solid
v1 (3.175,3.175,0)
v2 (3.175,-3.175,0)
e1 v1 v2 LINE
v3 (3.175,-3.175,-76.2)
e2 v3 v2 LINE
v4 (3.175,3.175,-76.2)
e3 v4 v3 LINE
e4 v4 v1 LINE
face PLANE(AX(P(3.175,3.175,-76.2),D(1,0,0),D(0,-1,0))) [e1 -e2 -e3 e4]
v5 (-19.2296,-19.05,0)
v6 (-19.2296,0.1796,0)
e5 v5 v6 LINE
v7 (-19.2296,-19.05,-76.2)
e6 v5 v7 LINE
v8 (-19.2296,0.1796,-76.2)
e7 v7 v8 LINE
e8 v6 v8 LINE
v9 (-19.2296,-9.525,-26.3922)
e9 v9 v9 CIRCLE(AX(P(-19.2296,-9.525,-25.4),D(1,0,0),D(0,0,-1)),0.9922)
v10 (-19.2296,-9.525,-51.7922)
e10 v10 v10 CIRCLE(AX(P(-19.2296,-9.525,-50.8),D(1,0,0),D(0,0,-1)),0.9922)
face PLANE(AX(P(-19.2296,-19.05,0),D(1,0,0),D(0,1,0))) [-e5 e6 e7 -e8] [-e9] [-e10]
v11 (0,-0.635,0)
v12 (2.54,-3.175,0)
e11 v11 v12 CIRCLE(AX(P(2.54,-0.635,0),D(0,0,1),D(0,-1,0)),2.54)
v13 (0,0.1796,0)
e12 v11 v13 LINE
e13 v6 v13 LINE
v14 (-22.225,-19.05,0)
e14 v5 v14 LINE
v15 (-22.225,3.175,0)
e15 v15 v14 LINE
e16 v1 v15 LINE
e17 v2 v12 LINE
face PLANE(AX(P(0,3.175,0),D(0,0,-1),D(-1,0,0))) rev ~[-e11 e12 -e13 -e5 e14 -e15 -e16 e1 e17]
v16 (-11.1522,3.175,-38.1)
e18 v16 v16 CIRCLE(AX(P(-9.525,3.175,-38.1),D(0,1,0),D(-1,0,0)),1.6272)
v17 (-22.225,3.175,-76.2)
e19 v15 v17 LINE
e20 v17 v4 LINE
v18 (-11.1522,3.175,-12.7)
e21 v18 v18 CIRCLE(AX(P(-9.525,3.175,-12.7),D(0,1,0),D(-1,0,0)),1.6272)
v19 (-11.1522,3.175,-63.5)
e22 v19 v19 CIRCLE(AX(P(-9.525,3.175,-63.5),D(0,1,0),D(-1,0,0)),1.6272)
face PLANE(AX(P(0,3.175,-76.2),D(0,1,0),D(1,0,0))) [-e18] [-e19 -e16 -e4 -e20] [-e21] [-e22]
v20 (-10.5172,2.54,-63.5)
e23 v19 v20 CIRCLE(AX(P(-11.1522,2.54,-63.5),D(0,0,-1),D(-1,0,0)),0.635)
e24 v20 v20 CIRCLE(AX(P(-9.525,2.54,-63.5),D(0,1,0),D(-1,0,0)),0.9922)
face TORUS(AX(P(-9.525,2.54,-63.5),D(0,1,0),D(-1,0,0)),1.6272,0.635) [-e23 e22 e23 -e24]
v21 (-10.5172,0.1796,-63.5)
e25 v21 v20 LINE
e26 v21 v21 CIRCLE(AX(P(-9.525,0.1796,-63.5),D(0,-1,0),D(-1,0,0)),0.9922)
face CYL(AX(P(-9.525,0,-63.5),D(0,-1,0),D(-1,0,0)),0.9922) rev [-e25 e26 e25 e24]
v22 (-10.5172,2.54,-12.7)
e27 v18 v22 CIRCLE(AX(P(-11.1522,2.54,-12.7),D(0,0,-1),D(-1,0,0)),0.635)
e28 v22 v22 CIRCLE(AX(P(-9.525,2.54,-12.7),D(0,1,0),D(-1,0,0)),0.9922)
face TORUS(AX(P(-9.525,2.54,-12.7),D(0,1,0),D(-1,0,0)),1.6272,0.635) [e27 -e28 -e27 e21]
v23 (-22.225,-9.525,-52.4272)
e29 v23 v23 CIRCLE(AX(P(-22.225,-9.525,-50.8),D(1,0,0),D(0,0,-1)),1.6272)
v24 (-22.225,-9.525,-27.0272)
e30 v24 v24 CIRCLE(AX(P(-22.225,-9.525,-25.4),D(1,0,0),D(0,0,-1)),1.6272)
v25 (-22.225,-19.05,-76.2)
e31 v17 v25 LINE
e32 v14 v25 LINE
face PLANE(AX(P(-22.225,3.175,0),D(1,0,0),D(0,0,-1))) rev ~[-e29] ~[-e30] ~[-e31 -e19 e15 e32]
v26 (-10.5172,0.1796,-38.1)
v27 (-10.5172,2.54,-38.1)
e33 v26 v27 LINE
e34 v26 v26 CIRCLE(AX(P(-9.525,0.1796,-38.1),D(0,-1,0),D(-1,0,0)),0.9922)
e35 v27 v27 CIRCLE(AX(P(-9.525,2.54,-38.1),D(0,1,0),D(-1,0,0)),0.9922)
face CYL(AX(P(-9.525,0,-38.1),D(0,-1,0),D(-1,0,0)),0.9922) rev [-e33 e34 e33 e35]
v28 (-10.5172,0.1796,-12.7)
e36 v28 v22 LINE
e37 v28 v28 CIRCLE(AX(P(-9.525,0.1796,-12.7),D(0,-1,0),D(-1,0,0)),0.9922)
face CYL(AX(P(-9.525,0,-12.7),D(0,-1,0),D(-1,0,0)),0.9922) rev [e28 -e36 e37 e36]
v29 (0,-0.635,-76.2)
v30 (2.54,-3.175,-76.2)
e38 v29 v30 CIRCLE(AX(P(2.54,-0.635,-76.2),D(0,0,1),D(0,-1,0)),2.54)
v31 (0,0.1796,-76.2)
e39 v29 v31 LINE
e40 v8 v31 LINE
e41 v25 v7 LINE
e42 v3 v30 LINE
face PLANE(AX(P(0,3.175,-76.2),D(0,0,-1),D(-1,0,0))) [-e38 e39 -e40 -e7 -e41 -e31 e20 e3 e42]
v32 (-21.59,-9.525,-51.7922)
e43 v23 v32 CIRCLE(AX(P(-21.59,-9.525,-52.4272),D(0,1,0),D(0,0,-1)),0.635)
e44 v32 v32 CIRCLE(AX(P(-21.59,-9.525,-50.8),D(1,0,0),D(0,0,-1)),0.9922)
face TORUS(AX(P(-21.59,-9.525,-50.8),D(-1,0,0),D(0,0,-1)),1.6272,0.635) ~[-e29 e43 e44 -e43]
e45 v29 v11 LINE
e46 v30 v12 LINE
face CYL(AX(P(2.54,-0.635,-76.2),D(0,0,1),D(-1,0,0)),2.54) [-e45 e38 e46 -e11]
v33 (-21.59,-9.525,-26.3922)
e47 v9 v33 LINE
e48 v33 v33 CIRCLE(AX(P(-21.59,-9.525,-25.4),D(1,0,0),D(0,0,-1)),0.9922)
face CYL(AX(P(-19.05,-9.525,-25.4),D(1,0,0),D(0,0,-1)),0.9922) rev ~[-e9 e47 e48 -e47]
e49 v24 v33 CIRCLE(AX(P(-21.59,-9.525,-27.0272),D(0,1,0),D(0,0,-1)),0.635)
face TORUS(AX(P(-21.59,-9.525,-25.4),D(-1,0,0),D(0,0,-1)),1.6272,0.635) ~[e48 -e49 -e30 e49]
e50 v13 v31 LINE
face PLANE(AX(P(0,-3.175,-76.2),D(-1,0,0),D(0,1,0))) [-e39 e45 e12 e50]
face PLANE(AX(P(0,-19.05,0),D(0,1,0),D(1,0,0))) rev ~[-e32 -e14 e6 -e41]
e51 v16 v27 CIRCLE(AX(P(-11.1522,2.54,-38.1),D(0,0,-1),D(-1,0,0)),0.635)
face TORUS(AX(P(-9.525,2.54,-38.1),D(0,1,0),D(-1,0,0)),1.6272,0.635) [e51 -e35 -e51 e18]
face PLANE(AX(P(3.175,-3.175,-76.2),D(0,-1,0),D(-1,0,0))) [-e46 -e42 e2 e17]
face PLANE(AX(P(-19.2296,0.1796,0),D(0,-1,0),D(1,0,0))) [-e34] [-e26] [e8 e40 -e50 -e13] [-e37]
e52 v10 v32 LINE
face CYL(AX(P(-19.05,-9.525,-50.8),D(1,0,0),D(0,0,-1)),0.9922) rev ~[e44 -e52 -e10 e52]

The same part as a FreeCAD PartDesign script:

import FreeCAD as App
import Part
import Sketcher

V = App.Vector
Q = App.Units.Quantity


def edges_at(feature, points):
    """Names of the edges that pass closest to the given points."""
    edges = feature.Shape.Edges
    near = lambda p: min(range(len(edges)), key=lambda i: edges[i].distToShape(Part.Vertex(*p))[0])
    return sorted({f"Edge{near(p) + 1}" for p in points})

doc = App.newDocument("Part")
body = doc.addObject("PartDesign::Body", "Body")

sketch1 = body.newObject("Sketcher::SketchObject", "Sketch")
sketch1.AttachmentSupport = (doc.getObject("XZ_Plane"), [""])
sketch1.MapMode = "FlatFace"
sketch1.addGeometry(Part.LineSegment(V(-19.1, 0, 0), V(0, 0, 0)), False)
sketch1.addGeometry(Part.LineSegment(V(0, 0, 0), V(0, -76.2, 0)), False)
sketch1.addGeometry(Part.LineSegment(V(0, -76.2, 0), V(-19.1, -76.2, 0)), False)
sketch1.addGeometry(Part.LineSegment(V(-19.1, -76.2, 0), V(-19.1, 0, 0)), False)
sketch1.addGeometry(Part.Circle(V(-9.5, -63.5, 0), V(0, 0, 1), 1), False)
sketch1.addGeometry(Part.Circle(V(-9.5, -38.1, 0), V(0, 0, 1), 1), False)
sketch1.addGeometry(Part.Circle(V(-9.5, -12.7, 0), V(0, 0, 1), 1), False)
sketch1.addConstraint(Sketcher.Constraint("Coincident", 0, 2, 1, 1))
sketch1.addConstraint(Sketcher.Constraint("Coincident", 1, 2, 2, 1))
sketch1.addConstraint(Sketcher.Constraint("Coincident", 2, 2, 3, 1))
sketch1.addConstraint(Sketcher.Constraint("Coincident", 3, 2, 0, 1))
sketch1.addConstraint(Sketcher.Constraint("Horizontal", 0))
sketch1.addConstraint(Sketcher.Constraint("Vertical", 1))
sketch1.addConstraint(Sketcher.Constraint("Horizontal", 2))
sketch1.addConstraint(Sketcher.Constraint("Vertical", 3))
sketch1.addConstraint(Sketcher.Constraint("Coincident", 0, 2, -1, 1))
sketch1.addConstraint(Sketcher.Constraint("Equal", 4, 5))
sketch1.addConstraint(Sketcher.Constraint("Equal", 5, 6))
sketch1.addConstraint(Sketcher.Constraint("Vertical", 4, 3, 5, 3))
sketch1.addConstraint(Sketcher.Constraint("Vertical", 5, 3, 6, 3))
sketch1.addConstraint(Sketcher.Constraint("DistanceY", 1, 2, 1, 1, Q("3 in")))
sketch1.addConstraint(Sketcher.Constraint("Diameter", 4, Q("0.078126 in")))
sketch1.addConstraint(Sketcher.Constraint("DistanceY", 4, 3, 5, 3, Q("1 in")))
sketch1.addConstraint(Sketcher.Constraint("DistanceY", 5, 3, 6, 3, Q("1 in")))
sketch1.addConstraint(Sketcher.Constraint("DistanceX", 0, 1, 0, 2, Q("0.75 in")))
sketch1.addConstraint(Sketcher.Constraint("DistanceY", 5, 3, -1, 1, Q("1.5 in")))
sketch1.addConstraint(Sketcher.Constraint("DistanceX", 4, 3, -1, 1, Q("0.375 in")))
pad1 = body.newObject("PartDesign::Pad", "Pad")
pad1.Profile = sketch1
pad1.Length = Q("0.125 in")
pad1.Reversed = True

sketch2 = body.newObject("Sketcher::SketchObject", "Sketch001")
sketch2.AttachmentSupport = (doc.getObject("XZ_Plane"), [""])
sketch2.MapMode = "FlatFace"
sketch2.AttachmentOffset = App.Placement(V(0, 0, -0.125 * 25.4), App.Rotation())
sketch2.addGeometry(Part.LineSegment(V(-19.1, 0, 0), V(-19.1, -76.2, 0)), False)
sketch2.addGeometry(Part.LineSegment(V(-19.1, -76.2, 0), V(-22.2, -76.2, 0)), False)
sketch2.addGeometry(Part.LineSegment(V(-22.2, -76.2, 0), V(-22.2, 0, 0)), False)
sketch2.addGeometry(Part.LineSegment(V(-22.2, 0, 0), V(-19.1, 0, 0)), False)
sketch2.addConstraint(Sketcher.Constraint("Coincident", 0, 2, 1, 1))
sketch2.addConstraint(Sketcher.Constraint("Coincident", 1, 2, 2, 1))
sketch2.addConstraint(Sketcher.Constraint("Coincident", 2, 2, 3, 1))
sketch2.addConstraint(Sketcher.Constraint("Coincident", 3, 2, 0, 1))
sketch2.addConstraint(Sketcher.Constraint("Vertical", 0))
sketch2.addConstraint(Sketcher.Constraint("Horizontal", 1))
sketch2.addConstraint(Sketcher.Constraint("Vertical", 2))
sketch2.addConstraint(Sketcher.Constraint("Horizontal", 3))
sketch2.addConstraint(Sketcher.Constraint("PointOnObject", 2, 2, -1))
sketch2.addConstraint(Sketcher.Constraint("DistanceY", 0, 2, 0, 1, Q("3 in")))
sketch2.addConstraint(Sketcher.Constraint("DistanceX", 1, 2, 1, 1, Q("0.125 in")))
sketch2.addConstraint(Sketcher.Constraint("DistanceX", 0, 2, -1, 1, Q("0.75 in")))
pad2 = body.newObject("PartDesign::Pad", "Pad001")
pad2.Profile = sketch2
pad2.Length = Q("0.875 in")

sketch3 = body.newObject("Sketcher::SketchObject", "Sketch002")
sketch3.AttachmentSupport = (doc.getObject("YZ_Plane"), [""])
sketch3.MapMode = "FlatFace"
sketch3.AttachmentOffset = App.Placement(V(0, 0, -0.75 * 25.4), App.Rotation())
sketch3.addGeometry(Part.Circle(V(-9.5, -25.4, 0), V(0, 0, 1), 1), False)
sketch3.addGeometry(Part.Circle(V(-9.5, -50.8, 0), V(0, 0, 1), 1), False)
sketch3.addConstraint(Sketcher.Constraint("Equal", 0, 1))
sketch3.addConstraint(Sketcher.Constraint("Vertical", 0, 3, 1, 3))
sketch3.addConstraint(Sketcher.Constraint("Diameter", 0, Q("0.078126 in")))
sketch3.addConstraint(Sketcher.Constraint("DistanceY", 0, 3, -1, 1, Q("1 in")))
sketch3.addConstraint(Sketcher.Constraint("DistanceY", 1, 3, 0, 3, Q("1 in")))
sketch3.addConstraint(Sketcher.Constraint("DistanceX", 0, 3, -1, 1, Q("0.375 in")))
pocket1 = body.newObject("PartDesign::Pocket", "Pocket")
pocket1.Profile = sketch3
pocket1.Length = Q("0.875 in")

sketch4 = body.newObject("Sketcher::SketchObject", "Sketch003")
sketch4.AttachmentSupport = (doc.getObject("XY_Plane"), [""])
sketch4.MapMode = "FlatFace"
sketch4.addGeometry(Part.LineSegment(V(0, -19, 0), V(0, 0, 0)), False)
sketch4.addGeometry(Part.LineSegment(V(0, 0, 0), V(-19, 0, 0)), False)
sketch4.addGeometry(Part.LineSegment(V(-19, 0, 0), V(-19, -19, 0)), False)
sketch4.addGeometry(Part.LineSegment(V(-19, -19, 0), V(0, -19, 0)), False)
sketch4.addConstraint(Sketcher.Constraint("Coincident", 0, 2, 1, 1))
sketch4.addConstraint(Sketcher.Constraint("Coincident", 1, 2, 2, 1))
sketch4.addConstraint(Sketcher.Constraint("Coincident", 2, 2, 3, 1))
sketch4.addConstraint(Sketcher.Constraint("Coincident", 3, 2, 0, 1))
sketch4.addConstraint(Sketcher.Constraint("Vertical", 0))
sketch4.addConstraint(Sketcher.Constraint("Horizontal", 1))
sketch4.addConstraint(Sketcher.Constraint("Vertical", 2))
sketch4.addConstraint(Sketcher.Constraint("Horizontal", 3))
sketch4.addConstraint(Sketcher.Constraint("PointOnObject", 0, 2, -2))
sketch4.addConstraint(Sketcher.Constraint("Equal", 3, 0))
sketch4.addConstraint(Sketcher.Constraint("DistanceY", 2, 2, -1, 1, Q("0.75 in")))
sketch4.addConstraint(Sketcher.Constraint("DistanceX", 1, 2, 1, 1, 19.2296))
pocket2 = body.newObject("PartDesign::Pocket", "Pocket001")
pocket2.Profile = sketch4
pocket2.Length = Q("3 in")
doc.recompute()

fillet = body.newObject("PartDesign::Fillet", "Fillet")
fillet.Base = (pocket2, edges_at(pocket2, [
    (-22.225, -9.525, -24.408),
    (-22.225, -9.525, -49.808),
    (-8.533, 3.175, -63.5),
    (-8.533, 3.175, -38.1),
    (-8.533, 3.175, -12.7),
]))
fillet.Radius = Q("0.025 in")

sketch5 = body.newObject("Sketcher::SketchObject", "Sketch004")
sketch5.AttachmentSupport = (doc.getObject("XY_Plane"), [""])
sketch5.MapMode = "FlatFace"
sketch5.AttachmentOffset = App.Placement(V(0, 0, -3 * 25.4), App.Rotation())
sketch5.addGeometry(Part.LineSegment(V(0, -3.2, 0), V(0, 3.2, 0)), False)
sketch5.addGeometry(Part.LineSegment(V(0, 3.2, 0), V(3.2, 3.2, 0)), False)
sketch5.addGeometry(Part.LineSegment(V(3.2, 3.2, 0), V(3.2, -3.2, 0)), False)
sketch5.addGeometry(Part.LineSegment(V(3.2, -3.2, 0), V(0, -3.2, 0)), False)
sketch5.addConstraint(Sketcher.Constraint("Coincident", 0, 2, 1, 1))
sketch5.addConstraint(Sketcher.Constraint("Coincident", 1, 2, 2, 1))
sketch5.addConstraint(Sketcher.Constraint("Coincident", 2, 2, 3, 1))
sketch5.addConstraint(Sketcher.Constraint("Coincident", 3, 2, 0, 1))
sketch5.addConstraint(Sketcher.Constraint("Vertical", 0))
sketch5.addConstraint(Sketcher.Constraint("Horizontal", 1))
sketch5.addConstraint(Sketcher.Constraint("Vertical", 2))
sketch5.addConstraint(Sketcher.Constraint("Horizontal", 3))
sketch5.addConstraint(Sketcher.Constraint("Symmetric", 0, 2, 3, 2, -1, 1))
sketch5.addConstraint(Sketcher.Constraint("DistanceY", 0, 1, 0, 2, Q("0.25 in")))
sketch5.addConstraint(Sketcher.Constraint("DistanceX", 1, 1, 1, 2, Q("0.125 in")))
pad3 = body.newObject("PartDesign::Pad", "Pad002")
pad3.Profile = sketch5
pad3.Length = Q("3 in")
doc.recompute()

fillet2 = body.newObject("PartDesign::Fillet", "Fillet001")
fillet2.Base = (pad3, edges_at(pad3, [(0, -3.175, -38.1)]))
fillet2.Radius = Q("0.1 in")

doc.recompute()
